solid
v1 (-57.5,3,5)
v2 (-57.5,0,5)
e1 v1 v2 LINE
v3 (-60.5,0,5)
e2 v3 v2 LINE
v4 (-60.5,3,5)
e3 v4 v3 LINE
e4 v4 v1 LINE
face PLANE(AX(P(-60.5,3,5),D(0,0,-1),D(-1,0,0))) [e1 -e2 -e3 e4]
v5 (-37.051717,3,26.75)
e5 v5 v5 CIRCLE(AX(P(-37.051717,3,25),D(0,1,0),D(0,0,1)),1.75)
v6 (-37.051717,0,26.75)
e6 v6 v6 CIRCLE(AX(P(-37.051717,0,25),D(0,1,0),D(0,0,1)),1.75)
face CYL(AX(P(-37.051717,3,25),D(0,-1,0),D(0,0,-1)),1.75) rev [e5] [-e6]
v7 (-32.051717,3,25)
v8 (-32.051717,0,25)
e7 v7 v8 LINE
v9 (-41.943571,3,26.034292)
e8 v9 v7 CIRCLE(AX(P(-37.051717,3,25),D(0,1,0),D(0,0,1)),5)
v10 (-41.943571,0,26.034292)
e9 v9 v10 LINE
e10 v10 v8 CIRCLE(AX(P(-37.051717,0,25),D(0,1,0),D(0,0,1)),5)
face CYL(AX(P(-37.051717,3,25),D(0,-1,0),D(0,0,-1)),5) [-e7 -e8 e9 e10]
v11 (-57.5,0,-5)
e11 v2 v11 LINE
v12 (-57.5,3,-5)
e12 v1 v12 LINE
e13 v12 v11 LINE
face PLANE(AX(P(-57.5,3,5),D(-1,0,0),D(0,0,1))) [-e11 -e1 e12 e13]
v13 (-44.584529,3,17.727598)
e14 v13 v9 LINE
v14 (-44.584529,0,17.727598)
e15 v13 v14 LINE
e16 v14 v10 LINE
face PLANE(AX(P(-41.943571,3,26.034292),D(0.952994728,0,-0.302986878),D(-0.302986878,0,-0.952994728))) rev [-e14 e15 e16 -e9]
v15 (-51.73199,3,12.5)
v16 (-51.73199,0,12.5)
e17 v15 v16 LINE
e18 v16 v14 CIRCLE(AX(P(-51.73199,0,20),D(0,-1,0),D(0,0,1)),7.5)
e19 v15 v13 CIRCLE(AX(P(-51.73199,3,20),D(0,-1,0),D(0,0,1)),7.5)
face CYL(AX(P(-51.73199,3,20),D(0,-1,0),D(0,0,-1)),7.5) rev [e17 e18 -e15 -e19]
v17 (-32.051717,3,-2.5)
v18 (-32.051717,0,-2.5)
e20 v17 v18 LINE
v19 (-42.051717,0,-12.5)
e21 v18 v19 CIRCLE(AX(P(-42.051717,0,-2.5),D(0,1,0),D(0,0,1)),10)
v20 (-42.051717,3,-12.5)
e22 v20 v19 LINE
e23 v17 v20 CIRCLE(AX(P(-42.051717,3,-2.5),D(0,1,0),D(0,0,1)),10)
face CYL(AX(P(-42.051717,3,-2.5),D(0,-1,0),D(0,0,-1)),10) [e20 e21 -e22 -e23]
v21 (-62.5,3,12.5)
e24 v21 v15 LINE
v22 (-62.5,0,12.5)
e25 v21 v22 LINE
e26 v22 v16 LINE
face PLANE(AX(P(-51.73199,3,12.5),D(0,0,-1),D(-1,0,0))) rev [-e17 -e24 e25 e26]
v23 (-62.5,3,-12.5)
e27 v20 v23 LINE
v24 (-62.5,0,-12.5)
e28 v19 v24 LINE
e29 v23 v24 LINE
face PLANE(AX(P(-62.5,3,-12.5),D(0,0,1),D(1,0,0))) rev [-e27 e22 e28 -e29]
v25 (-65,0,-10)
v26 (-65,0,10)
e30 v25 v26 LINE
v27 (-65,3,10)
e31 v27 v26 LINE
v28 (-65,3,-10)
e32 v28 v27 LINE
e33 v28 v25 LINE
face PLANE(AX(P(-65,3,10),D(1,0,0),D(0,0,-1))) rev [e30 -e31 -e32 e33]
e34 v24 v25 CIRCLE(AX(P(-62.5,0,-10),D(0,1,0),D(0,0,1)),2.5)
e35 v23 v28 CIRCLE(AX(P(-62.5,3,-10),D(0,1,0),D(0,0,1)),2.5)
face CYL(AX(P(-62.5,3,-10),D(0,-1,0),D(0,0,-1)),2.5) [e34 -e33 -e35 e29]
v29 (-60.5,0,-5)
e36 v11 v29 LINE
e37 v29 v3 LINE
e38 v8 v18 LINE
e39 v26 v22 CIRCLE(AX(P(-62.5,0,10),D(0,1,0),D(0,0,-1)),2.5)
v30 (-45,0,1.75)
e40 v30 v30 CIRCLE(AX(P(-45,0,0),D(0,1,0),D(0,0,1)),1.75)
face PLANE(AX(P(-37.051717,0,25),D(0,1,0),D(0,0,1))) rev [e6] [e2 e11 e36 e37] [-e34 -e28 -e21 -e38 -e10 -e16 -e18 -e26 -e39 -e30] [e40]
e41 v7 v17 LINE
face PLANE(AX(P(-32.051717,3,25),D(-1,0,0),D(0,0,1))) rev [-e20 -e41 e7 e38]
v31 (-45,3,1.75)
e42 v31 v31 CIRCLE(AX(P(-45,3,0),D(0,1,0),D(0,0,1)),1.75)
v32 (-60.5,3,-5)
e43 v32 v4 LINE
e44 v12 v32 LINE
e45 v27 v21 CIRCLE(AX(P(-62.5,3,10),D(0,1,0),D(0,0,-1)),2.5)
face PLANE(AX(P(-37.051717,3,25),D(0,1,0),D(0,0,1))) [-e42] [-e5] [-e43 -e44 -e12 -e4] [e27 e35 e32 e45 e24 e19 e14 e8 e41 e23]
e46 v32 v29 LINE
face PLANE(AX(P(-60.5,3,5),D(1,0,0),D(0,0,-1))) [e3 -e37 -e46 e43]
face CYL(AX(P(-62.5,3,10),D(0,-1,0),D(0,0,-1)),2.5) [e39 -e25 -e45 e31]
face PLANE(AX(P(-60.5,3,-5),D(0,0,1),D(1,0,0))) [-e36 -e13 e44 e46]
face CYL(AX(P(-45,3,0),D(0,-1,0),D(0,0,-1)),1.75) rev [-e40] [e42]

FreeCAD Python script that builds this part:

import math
import FreeCAD as App
import Part
import Sketcher
from FreeCAD import Vector
Q = App.Units.Quantity


def add_polygon(sketch, points):
    """Adds a closed chain of lines whose ends are joined by coincident constraints."""
    first, n = sketch.GeometryCount, len(points)
    for a, b in zip(points, points[1:] + points[:1]):
        sketch.addGeometry(Part.LineSegment(App.Vector(*a, 0), App.Vector(*b, 0)), False)
    for i in range(n):
        sketch.addConstraint(Sketcher.Constraint("Coincident", first + i, 2, first + (i + 1) % n, 1))

doc = App.newDocument("Part")
params = doc.addObject("Spreadsheet::Sheet", "Params")
for row, (alias, value) in enumerate([
    ("sketch1_radius", "10 mm"),
    ("sketch1_radius2", "5 mm"),
    ("sketch1_diameter", "3.5 mm"),
    ("sketch1_radius3", "2.5 mm"),
    ("sketch1_radius4", "7.5 mm"),
    ("pad1_length", "3 mm"),
], start=1):
    params.set(f"A{row}", alias)
    params.set(f"B{row}", "=" + value)
    params.setAlias(f"B{row}", alias)

body = doc.addObject("PartDesign::Body", "Body")

sketch1 = body.newObject("Sketcher::SketchObject", "Sketch")
sketch1.AttachmentSupport = (doc.getObject("XZ_Plane"), [""])
sketch1.MapMode = "FlatFace"
sketch1.addGeometry(Part.LineSegment(Vector(-32.051717, 25, 0), Vector(-32.051717, -2.5, 0)), False)
sketch1.addGeometry(Part.ArcOfCircle(Part.Circle(Vector(-42.051717, -2.5, 0), Vector(0, 0, 1), 10), math.radians(-90), math.radians(0)), False)
sketch1.addGeometry(Part.LineSegment(Vector(-42.051717, -12.5, 0), Vector(-62.5, -12.5, 0)), False)
sketch1.addGeometry(Part.ArcOfCircle(Part.Circle(Vector(-62.5, -10, 0), Vector(0, 0, 1), 2.5), math.radians(180), math.radians(270)), False)
sketch1.addGeometry(Part.LineSegment(Vector(-65, -10, 0), Vector(-65, 10, 0)), False)
sketch1.addGeometry(Part.ArcOfCircle(Part.Circle(Vector(-62.5, 10, 0), Vector(0, 0, 1), 2.5), math.radians(90), math.radians(180)), False)
sketch1.addGeometry(Part.LineSegment(Vector(-62.5, 12.5, 0), Vector(-51.73199, 12.5, 0)), False)
sketch1.addGeometry(Part.ArcOfCircle(Part.Circle(Vector(-51.73199, 20, 0), Vector(0, 0, 1), 7.5), math.radians(-90), math.radians(-17.637091)), False)
sketch1.addGeometry(Part.LineSegment(Vector(-44.584529, 17.727598, 0), Vector(-41.943571, 26.034292, 0)), False)
sketch1.addGeometry(Part.ArcOfCircle(Part.Circle(Vector(-37.051717, 25, 0), Vector(0, 0, 1), 5), math.radians(0), math.radians(168.061695)), False)
sketch1.addGeometry(Part.Circle(Vector(-37.051717, 25, 0), Vector(0, 0, 1), 1.75), False)
add_polygon(sketch1, [(-57.5, 5), (-60.5, 5), (-60.5, -5), (-57.5, -5)])
sketch1.addGeometry(Part.Circle(Vector(-45, 0, 0), Vector(0, 0, 1), 1.75), False)
sketch1.addConstraint([
    Sketcher.Constraint("Tangent", 0, 2, 1, 2),
    Sketcher.Constraint("Tangent", 1, 1, 2, 1),
    Sketcher.Constraint("Tangent", 2, 2, 3, 2),
    Sketcher.Constraint("Tangent", 3, 1, 4, 1),
    Sketcher.Constraint("Tangent", 4, 2, 5, 2),
    Sketcher.Constraint("Tangent", 5, 1, 6, 1),
    Sketcher.Constraint("Tangent", 6, 2, 7, 1),
    Sketcher.Constraint("Tangent", 7, 2, 8, 1),
    Sketcher.Constraint("Coincident", 8, 2, 9, 2),
    Sketcher.Constraint("Tangent", 9, 1, 0, 1),
    Sketcher.Constraint("Vertical", 0),
    Sketcher.Constraint("Horizontal", 2),
    Sketcher.Constraint("Vertical", 4),
    Sketcher.Constraint("Horizontal", 6),
    Sketcher.Constraint("Horizontal", 11),
    Sketcher.Constraint("Vertical", 12),
    Sketcher.Constraint("Horizontal", 13),
    Sketcher.Constraint("Vertical", 14),
    Sketcher.Constraint("Coincident", 10, 3, 9, 3),
    Sketcher.Constraint("Equal", 3, 5),
    Sketcher.Constraint("Equal", 10, 15),
    Sketcher.Constraint("PointOnObject", 15, 3, -1),
    Sketcher.Constraint("Radius", 1, Q("10 mm")),
    Sketcher.Constraint("Radius", 9, Q("5 mm")),
    Sketcher.Constraint("Diameter", 10, Q("3.5 mm")),
    Sketcher.Constraint("Radius", 3, Q("2.5 mm")),
    Sketcher.Constraint("Radius", 7, Q("7.5 mm")),
    Sketcher.Constraint("DistanceX", 11, 2, 11, 1, Q("3 mm")),
    Sketcher.Constraint("DistanceY", 4, 1, 4, 2, Q("20 mm")),
    Sketcher.Constraint("DistanceY", 12, 2, 12, 1, Q("10 mm")),
    Sketcher.Constraint("DistanceY", 0, 2, 0, 1, Q("27.5 mm")),
    Sketcher.Constraint("DistanceY", 3, 3, -1, 1, Q("10 mm")),
    Sketcher.Constraint("DistanceX", 15, 3, -1, 1, Q("45 mm")),
    Sketcher.Constraint("DistanceX", 3, 1, -1, 1, Q("65 mm")),
    Sketcher.Constraint("DistanceY", -1, 1, 11, 2, Q("5 mm")),
    Sketcher.Constraint("DistanceX", 5, 3, 11, 2, Q("2 mm")),
    Sketcher.Constraint("DistanceX", 6, 1, 6, 2, Q("10.76801 mm")),
    Sketcher.Constraint("DistanceY", -1, 1, 7, 2, Q("17.727598 mm")),
    Sketcher.Constraint("Distance", 8, Q("8.71641 mm")),
])
sketch1.setExpression("Constraints[26]", "Params.sketch1_radius")
sketch1.setExpression("Constraints[27]", "Params.sketch1_radius2")
sketch1.setExpression("Constraints[28]", "Params.sketch1_diameter")
sketch1.setExpression("Constraints[29]", "Params.sketch1_radius3")
sketch1.setExpression("Constraints[30]", "Params.sketch1_radius4")
pad1 = body.newObject("PartDesign::Pad", "Pad")
pad1.Profile = sketch1
pad1.setExpression("Length", "Params.pad1_length")
pad1.Reversed = True

doc.recompute()
